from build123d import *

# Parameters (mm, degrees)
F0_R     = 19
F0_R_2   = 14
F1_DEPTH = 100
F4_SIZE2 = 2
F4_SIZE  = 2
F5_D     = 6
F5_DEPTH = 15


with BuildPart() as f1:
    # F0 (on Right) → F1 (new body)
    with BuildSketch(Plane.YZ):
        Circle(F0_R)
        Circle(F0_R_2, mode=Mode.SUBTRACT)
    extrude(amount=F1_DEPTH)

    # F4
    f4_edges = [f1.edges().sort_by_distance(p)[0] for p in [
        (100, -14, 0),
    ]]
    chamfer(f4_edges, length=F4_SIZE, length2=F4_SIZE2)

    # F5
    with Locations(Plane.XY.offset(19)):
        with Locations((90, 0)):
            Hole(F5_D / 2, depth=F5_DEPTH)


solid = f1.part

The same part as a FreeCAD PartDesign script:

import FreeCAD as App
import Part
import Sketcher
from FreeCAD import Vector
Q = App.Units.Quantity


def edges_at(feature, points):
    """Names of the edges that pass closest to the given points."""
    edges = feature.Shape.Edges
    near = lambda p: min(range(len(edges)), key=lambda i: edges[i].distToShape(Part.Vertex(*p))[0])
    return sorted({f"Edge{near(p) + 1}" for p in points})

doc = App.newDocument("Part")
body = doc.addObject("PartDesign::Body", "Body")

# Sketch on YZ plane
sketch1 = doc.addObject("Sketcher::SketchObject", "Sketch")
body.addObject(sketch1)
sketch1.AttachmentSupport = (doc.YZ_Plane, [""])
sketch1.MapMode = "FlatFace"
sketch1.addGeometry([
    Part.Circle(Vector(0, 0, 0), Vector(0, 0, 1), 19),
    Part.Circle(Vector(0, 0, 0), Vector(0, 0, 1), 14),
], False)
sketch1.addConstraint([
    Sketcher.Constraint("Coincident", 0, 3, -1, 1),
    Sketcher.Constraint("Coincident", 1, 3, -1, 1),
    Sketcher.Constraint("Diameter", 0, Q("38 mm")),
    Sketcher.Constraint("Diameter", 1, Q("28 mm")),
])
pad1 = doc.addObject("PartDesign::Pad", "Pad")
body.addObject(pad1)
pad1.Profile = sketch1
pad1.Length = 100
doc.recompute()

chamfer = doc.addObject("PartDesign::Chamfer", "Chamfer")
body.addObject(chamfer)
chamfer.Base = (pad1, edges_at(pad1, [(100, -14, 0)]))
chamfer.ChamferType = "Two distances"
chamfer.Size = 2
chamfer.Size2 = 2

# Sketch on XY plane
sketch2 = doc.addObject("Sketcher::SketchObject", "Sketch001")
body.addObject(sketch2)
sketch2.AttachmentSupport = (doc.XY_Plane, [""])
sketch2.MapMode = "FlatFace"
sketch2.AttachmentOffset = App.Placement(Vector(0, 0, 19), App.Rotation())
sketch2.addGeometry(Part.Circle(Vector(90, 0, 0), Vector(0, 0, 1), 3), False)
sketch2.addConstraint([
    Sketcher.Constraint("PointOnObject", 0, 3, -1),
    Sketcher.Constraint("Diameter", 0, Q("6 mm")),
    Sketcher.Constraint("DistanceX", -1, 1, 0, 3, Q("90 mm")),
])
doc.recompute()
hole = doc.addObject("PartDesign::Hole", "Hole")
body.addObject(hole)
hole.Profile = sketch2
hole.ThreadType = "None"
hole.Diameter = 6
hole.DepthType = "Dimension"
hole.Depth = 15
hole.DrillPoint = "Flat"

doc.recompute()
